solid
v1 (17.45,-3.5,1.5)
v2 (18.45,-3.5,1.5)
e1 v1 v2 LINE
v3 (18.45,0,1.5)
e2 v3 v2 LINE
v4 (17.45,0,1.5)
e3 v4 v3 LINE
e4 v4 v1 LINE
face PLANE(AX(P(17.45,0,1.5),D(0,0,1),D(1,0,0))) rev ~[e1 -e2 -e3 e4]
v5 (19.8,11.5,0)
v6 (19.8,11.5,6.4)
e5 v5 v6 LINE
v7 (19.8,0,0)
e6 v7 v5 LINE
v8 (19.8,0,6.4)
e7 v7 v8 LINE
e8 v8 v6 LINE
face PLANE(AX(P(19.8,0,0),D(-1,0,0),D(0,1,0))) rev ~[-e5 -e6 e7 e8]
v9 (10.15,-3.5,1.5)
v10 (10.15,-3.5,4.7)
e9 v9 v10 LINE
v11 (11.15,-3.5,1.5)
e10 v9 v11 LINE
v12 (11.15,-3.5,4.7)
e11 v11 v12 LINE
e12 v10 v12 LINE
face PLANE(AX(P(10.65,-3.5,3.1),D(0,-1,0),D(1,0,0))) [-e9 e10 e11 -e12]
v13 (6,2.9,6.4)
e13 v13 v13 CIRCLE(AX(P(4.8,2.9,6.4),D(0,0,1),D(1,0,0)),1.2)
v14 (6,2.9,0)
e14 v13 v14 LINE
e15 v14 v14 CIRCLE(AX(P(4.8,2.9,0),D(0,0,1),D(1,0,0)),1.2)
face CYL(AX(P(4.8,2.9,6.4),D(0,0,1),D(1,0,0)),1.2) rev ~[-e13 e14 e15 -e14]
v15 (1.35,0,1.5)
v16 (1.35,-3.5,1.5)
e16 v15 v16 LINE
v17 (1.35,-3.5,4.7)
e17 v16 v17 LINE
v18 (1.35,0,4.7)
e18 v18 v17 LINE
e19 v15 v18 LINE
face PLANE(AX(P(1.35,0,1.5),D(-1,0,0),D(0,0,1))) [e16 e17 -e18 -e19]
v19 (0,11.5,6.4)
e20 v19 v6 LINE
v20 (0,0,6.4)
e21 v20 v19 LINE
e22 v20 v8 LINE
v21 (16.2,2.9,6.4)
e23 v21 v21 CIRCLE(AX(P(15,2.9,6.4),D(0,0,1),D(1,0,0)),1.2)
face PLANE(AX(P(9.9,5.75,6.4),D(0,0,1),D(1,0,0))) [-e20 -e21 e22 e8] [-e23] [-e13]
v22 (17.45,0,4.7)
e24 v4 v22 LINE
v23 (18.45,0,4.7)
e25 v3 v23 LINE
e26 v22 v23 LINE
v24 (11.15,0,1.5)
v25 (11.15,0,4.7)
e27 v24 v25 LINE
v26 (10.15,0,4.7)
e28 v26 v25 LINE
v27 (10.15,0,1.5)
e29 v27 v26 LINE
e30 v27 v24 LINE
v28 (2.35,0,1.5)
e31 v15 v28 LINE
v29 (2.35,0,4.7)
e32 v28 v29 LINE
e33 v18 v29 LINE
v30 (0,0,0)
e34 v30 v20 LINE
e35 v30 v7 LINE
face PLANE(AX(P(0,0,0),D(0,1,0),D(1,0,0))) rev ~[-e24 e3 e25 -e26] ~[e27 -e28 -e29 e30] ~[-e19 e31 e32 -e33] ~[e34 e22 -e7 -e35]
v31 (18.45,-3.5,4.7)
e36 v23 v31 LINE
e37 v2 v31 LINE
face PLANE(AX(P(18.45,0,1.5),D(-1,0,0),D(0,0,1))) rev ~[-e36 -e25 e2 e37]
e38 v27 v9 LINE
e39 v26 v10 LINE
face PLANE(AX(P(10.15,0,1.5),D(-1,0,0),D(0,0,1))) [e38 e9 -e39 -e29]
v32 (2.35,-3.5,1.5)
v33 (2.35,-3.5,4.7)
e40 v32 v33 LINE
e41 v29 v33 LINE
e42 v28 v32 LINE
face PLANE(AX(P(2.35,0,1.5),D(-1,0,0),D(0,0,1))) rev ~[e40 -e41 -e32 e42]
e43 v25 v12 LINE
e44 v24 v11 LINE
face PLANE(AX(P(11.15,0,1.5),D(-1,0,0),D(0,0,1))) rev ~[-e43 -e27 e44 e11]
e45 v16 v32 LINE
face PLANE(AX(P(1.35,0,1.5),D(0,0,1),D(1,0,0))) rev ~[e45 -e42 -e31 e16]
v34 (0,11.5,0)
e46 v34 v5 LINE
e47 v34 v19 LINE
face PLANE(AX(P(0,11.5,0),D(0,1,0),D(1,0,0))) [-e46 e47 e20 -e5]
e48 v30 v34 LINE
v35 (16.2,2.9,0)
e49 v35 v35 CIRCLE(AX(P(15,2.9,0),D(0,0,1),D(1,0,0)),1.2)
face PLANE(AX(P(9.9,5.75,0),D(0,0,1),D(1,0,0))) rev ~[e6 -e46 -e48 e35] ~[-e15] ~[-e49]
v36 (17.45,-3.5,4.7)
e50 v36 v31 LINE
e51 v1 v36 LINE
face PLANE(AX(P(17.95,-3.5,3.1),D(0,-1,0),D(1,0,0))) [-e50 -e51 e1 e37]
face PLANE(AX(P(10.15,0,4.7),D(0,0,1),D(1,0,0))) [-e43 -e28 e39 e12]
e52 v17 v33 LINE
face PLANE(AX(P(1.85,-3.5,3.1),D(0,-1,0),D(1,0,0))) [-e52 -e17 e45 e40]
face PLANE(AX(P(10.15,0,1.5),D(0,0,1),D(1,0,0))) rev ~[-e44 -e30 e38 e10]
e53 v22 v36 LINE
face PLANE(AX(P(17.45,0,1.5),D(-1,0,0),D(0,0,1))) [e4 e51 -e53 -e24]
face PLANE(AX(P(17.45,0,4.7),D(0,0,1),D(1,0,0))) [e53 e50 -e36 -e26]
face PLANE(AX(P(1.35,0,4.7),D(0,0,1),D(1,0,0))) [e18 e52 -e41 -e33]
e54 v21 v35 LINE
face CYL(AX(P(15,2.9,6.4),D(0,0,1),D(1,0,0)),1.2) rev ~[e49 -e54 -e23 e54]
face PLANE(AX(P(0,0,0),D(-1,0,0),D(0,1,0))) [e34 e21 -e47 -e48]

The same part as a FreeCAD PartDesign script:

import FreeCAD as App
import Part
import Sketcher

V = App.Vector


def add_polygon(sketch, points):
    """Adds a closed chain of lines whose ends are joined by coincident constraints."""
    first, n = sketch.GeometryCount, len(points)
    for a, b in zip(points, points[1:] + points[:1]):
        sketch.addGeometry(Part.LineSegment(App.Vector(*a, 0), App.Vector(*b, 0)), False)
    for i in range(n):
        sketch.addConstraint(Sketcher.Constraint("Coincident", first + i, 2, first + (i + 1) % n, 1))

doc = App.newDocument("Part")
params = doc.addObject("Spreadsheet::Sheet", "Params")
for row, (alias, value) in enumerate([
    ("sketch1_width", "19.8 mm"),
    ("sketch1_height", "11.5 mm"),
    ("pad1_length", "6.4 mm"),
    ("sketch2_diameter", "2.4 mm"),
    ("sketch3_width", "1 mm"),
    ("sketch3_height", "3.2 mm"),
    ("pad2_length", "3.5 mm"),
], start=1):
    params.set(f"A{row}", alias)
    params.set(f"B{row}", "=" + value)
    params.setAlias(f"B{row}", alias)

body = doc.addObject("PartDesign::Body", "Body")

sketch1 = doc.addObject("Sketcher::SketchObject", "Sketch")
body.addObject(sketch1)
sketch1.AttachmentSupport = (doc.XY_Plane, [""])
sketch1.MapMode = "FlatFace"
add_polygon(sketch1, [(0, 12), (0, 0), (20, 0), (20, 12)])
sketch1.addConstraint([
    Sketcher.Constraint("Vertical", 0),
    Sketcher.Constraint("Horizontal", 1),
    Sketcher.Constraint("Vertical", 2),
    Sketcher.Constraint("Horizontal", 3),
    Sketcher.Constraint("Coincident", 0, 2, -1, 1),
    Sketcher.Constraint("DistanceX", 1, 1, 1, 2, 19.8),
    Sketcher.Constraint("DistanceY", 0, 2, 0, 1, 11.5),
])
sketch1.setExpression("Constraints[9]", "Params.sketch1_width")
sketch1.setExpression("Constraints[10]", "Params.sketch1_height")
pad1 = doc.addObject("PartDesign::Pad", "Pad")
body.addObject(pad1)
pad1.Profile = sketch1
pad1.setExpression("Length", "Params.pad1_length")

sketch2 = doc.addObject("Sketcher::SketchObject", "Sketch001")
body.addObject(sketch2)
sketch2.AttachmentSupport = (doc.XY_Plane, [""])
sketch2.MapMode = "FlatFace"
sketch2.AttachmentOffset = App.Placement(V(0, 0, 6.4), App.Rotation())
sketch2.addGeometry([
    Part.Circle(V(4.8, 2.9, 0), V(0, 0, 1), 1.2),
    Part.Circle(V(15, 2.9, 0), V(0, 0, 1), 1.2),
], False)
sketch2.addConstraint([
    Sketcher.Constraint("Equal", 0, 1),
    Sketcher.Constraint("Horizontal", 0, 3, 1, 3),
    Sketcher.Constraint("Diameter", 0, 2.4),
    Sketcher.Constraint("DistanceX", -1, 1, 1, 3, 15.0),
    Sketcher.Constraint("DistanceX", -1, 1, 0, 3, 4.8),
    Sketcher.Constraint("DistanceY", -1, 1, 0, 3, 2.9),
])
sketch2.setExpression("Constraints[2]", "Params.sketch2_diameter")
pocket1 = doc.addObject("PartDesign::Pocket", "Pocket")
body.addObject(pocket1)
pocket1.Profile = sketch2
pocket1.Type = "ThroughAll"

sketch3 = doc.addObject("Sketcher::SketchObject", "Sketch002")
body.addObject(sketch3)
sketch3.AttachmentSupport = (doc.XZ_Plane, [""])
sketch3.MapMode = "FlatFace"
add_polygon(sketch3, [(1.4, 4.7), (1.4, 1.5), (2.4, 1.5), (2.4, 4.7)])
add_polygon(sketch3, [(10.2, 4.7), (10.2, 1.5), (11.2, 1.5), (11.2, 4.7)])
add_polygon(sketch3, [(17.4, 4.7), (17.4, 1.5), (18.4, 1.5), (18.4, 4.7)])
sketch3.addConstraint([
    Sketcher.Constraint("Vertical", 0),
    Sketcher.Constraint("Horizontal", 1),
    Sketcher.Constraint("Vertical", 2),
    Sketcher.Constraint("Horizontal", 3),
    Sketcher.Constraint("Vertical", 4),
    Sketcher.Constraint("Horizontal", 5),
    Sketcher.Constraint("Vertical", 6),
    Sketcher.Constraint("Horizontal", 7),
    Sketcher.Constraint("Vertical", 8),
    Sketcher.Constraint("Horizontal", 9),
    Sketcher.Constraint("Vertical", 10),
    Sketcher.Constraint("Horizontal", 11),
    Sketcher.Constraint("Horizontal", 1, 2, 4, 2),
    Sketcher.Constraint("Horizontal", 3, 2, 6, 2),
    Sketcher.Constraint("Horizontal", 5, 2, 8, 2),
    Sketcher.Constraint("Horizontal", 7, 2, 10, 2),
    Sketcher.Constraint("Equal", 3, 5),
    Sketcher.Constraint("Equal", 7, 9),
    Sketcher.Constraint("DistanceX", 1, 1, 1, 2, 1.0),
    Sketcher.Constraint("DistanceY", 0, 2, 0, 1, 3.2),
    Sketcher.Constraint("DistanceY", -1, 1, 0, 2, 1.5),
    Sketcher.Constraint("DistanceX", 1, 2, 4, 2, 7.8),
    Sketcher.Constraint("DistanceX", 5, 2, 8, 2, 6.3),
    Sketcher.Constraint("DistanceX", -1, 1, 0, 2, 1.35),
])
sketch3.setExpression("Constraints[30]", "Params.sketch3_width")
sketch3.setExpression("Constraints[31]", "Params.sketch3_height")
pad2 = doc.addObject("PartDesign::Pad", "Pad001")
body.addObject(pad2)
pad2.Profile = sketch3
pad2.setExpression("Length", "Params.pad2_length")

doc.recompute()
